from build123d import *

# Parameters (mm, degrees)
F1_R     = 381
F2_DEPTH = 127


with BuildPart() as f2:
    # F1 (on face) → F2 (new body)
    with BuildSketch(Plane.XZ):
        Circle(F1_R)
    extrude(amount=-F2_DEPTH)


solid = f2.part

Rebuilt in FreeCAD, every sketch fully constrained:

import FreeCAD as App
import Part
import Sketcher
Q = App.Units.Quantity

doc = App.newDocument("Part")
params = doc.addObject("Spreadsheet::Sheet", "Params")
for row, (alias, value) in enumerate([
    ("sketch1_diameter", "30 in"),
    ("pad1_length", "5 in"),
], start=1):
    params.set(f"A{row}", alias)
    params.set(f"B{row}", "=" + value)
    params.setAlias(f"B{row}", alias)

body = doc.addObject("PartDesign::Body", "Body")

sketch1 = doc.addObject("Sketcher::SketchObject", "Sketch")
body.addObject(sketch1)
sketch1.AttachmentSupport = (doc.XZ_Plane, [""])
sketch1.MapMode = "FlatFace"
sketch1.addGeometry(Part.Circle(App.Vector(0, 0, 0), App.Vector(0, 0, 1), 381), False)
sketch1.addConstraint([
    Sketcher.Constraint("Coincident", 0, 3, -1, 1),
    Sketcher.Constraint("Diameter", 0, Q("30 in")),
])
sketch1.setExpression("Constraints[1]", "Params.sketch1_diameter")
pad1 = doc.addObject("PartDesign::Pad", "Pad")
body.addObject(pad1)
pad1.Profile = sketch1
pad1.setExpression("Length", "Params.pad1_length")
pad1.Reversed = True

doc.recompute()
